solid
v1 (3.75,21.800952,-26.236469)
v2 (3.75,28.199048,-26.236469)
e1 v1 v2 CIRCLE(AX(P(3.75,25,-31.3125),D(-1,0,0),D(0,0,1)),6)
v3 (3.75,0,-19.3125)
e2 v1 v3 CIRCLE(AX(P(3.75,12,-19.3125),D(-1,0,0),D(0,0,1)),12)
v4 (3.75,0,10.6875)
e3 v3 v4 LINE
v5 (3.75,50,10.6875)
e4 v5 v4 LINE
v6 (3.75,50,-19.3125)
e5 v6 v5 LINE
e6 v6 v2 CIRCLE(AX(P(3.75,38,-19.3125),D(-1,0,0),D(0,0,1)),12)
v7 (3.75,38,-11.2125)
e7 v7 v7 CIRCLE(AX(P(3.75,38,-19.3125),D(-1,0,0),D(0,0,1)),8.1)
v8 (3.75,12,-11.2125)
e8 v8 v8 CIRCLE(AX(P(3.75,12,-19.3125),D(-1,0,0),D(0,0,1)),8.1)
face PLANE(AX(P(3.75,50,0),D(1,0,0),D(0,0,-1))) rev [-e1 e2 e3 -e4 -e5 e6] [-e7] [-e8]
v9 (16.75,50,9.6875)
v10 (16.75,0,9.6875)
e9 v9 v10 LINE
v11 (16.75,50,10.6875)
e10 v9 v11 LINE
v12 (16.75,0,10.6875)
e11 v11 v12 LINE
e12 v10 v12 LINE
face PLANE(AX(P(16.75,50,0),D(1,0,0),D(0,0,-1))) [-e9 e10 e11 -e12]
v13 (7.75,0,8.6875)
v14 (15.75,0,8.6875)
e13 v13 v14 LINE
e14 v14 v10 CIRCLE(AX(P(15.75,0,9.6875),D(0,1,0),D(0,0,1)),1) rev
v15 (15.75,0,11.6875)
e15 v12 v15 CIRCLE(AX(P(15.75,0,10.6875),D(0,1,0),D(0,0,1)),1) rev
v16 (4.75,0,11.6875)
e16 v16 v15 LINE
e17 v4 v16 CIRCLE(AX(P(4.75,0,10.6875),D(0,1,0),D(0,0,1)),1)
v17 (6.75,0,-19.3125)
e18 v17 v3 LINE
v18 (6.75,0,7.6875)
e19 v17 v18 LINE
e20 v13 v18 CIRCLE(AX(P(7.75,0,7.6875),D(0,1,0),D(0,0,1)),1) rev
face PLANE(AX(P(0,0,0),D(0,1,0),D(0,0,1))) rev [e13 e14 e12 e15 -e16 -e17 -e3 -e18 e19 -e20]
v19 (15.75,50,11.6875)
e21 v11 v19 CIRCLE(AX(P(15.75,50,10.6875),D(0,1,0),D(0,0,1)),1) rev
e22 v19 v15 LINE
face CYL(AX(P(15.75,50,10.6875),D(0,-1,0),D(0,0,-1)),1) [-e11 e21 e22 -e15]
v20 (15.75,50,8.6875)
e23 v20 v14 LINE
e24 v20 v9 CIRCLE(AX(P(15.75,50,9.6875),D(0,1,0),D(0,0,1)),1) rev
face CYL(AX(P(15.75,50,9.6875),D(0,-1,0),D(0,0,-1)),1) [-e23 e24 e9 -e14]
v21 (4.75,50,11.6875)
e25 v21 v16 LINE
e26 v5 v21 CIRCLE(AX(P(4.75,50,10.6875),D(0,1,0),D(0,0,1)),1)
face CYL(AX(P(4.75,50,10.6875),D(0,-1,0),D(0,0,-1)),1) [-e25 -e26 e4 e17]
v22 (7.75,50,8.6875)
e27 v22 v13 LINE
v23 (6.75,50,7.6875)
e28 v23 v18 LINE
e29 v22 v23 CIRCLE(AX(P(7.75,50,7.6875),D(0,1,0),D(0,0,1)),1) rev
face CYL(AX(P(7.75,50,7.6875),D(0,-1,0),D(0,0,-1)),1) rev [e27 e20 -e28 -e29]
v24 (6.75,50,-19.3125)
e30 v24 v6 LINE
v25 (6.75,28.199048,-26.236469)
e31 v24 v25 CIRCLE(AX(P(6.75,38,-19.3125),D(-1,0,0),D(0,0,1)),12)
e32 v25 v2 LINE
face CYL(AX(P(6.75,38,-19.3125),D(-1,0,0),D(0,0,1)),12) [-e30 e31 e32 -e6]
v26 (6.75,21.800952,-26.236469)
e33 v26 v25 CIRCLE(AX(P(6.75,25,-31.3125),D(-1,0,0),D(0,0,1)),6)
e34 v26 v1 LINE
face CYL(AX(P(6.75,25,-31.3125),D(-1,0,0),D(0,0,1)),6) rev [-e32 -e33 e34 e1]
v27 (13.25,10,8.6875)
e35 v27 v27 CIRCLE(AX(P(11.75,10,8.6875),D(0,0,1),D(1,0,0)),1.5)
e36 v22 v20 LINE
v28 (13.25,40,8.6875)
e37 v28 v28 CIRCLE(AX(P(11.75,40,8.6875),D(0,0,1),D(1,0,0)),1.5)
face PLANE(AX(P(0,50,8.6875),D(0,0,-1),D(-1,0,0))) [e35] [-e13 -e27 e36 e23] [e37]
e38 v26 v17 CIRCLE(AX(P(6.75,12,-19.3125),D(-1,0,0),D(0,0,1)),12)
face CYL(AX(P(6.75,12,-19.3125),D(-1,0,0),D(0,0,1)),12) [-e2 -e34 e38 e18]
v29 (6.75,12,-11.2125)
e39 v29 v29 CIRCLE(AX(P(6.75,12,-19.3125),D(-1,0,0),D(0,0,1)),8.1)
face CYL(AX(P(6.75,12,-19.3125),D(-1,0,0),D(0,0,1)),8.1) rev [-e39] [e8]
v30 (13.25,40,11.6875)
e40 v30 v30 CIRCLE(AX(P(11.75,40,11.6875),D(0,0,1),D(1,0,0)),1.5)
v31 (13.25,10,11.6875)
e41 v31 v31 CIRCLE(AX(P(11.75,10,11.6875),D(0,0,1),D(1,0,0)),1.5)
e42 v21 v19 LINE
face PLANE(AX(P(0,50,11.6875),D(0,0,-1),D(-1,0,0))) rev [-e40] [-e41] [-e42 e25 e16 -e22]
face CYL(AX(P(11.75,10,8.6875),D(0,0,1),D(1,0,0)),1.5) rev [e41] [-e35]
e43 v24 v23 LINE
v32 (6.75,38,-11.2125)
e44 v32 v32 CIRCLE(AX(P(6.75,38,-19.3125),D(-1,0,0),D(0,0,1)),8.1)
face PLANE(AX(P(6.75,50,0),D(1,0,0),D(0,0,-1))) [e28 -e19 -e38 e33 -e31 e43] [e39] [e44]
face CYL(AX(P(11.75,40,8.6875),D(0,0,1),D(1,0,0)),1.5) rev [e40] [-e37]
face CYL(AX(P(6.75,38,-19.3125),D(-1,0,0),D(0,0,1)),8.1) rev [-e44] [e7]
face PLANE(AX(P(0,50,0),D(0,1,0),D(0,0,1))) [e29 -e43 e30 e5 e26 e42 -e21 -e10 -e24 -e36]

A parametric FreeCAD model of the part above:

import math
import FreeCAD as App
import Part
import Sketcher

V = App.Vector

doc = App.newDocument("Part")
body = doc.addObject("PartDesign::Body", "Body")

sketch1 = body.newObject("Sketcher::SketchObject", "Sketch")
sketch1.AttachmentSupport = (doc.getObject("XZ_Plane"), [""])
sketch1.MapMode = "FlatFace"
sketch1.addGeometry(Part.LineSegment(V(6.8, -31.3, 0), V(3.8, -31.3, 0)), False)
sketch1.addGeometry(Part.LineSegment(V(3.8, -31.3, 0), V(3.8, 10.7, 0)), False)
sketch1.addGeometry(Part.ArcOfCircle(Part.Circle(V(4.8, 10.7, 0), V(0, 0, 1), 1), math.radians(90), math.radians(180)), False)
sketch1.addGeometry(Part.LineSegment(V(4.8, 11.7, 0), V(15.8, 11.7, 0)), False)
sketch1.addGeometry(Part.ArcOfCircle(Part.Circle(V(15.7, 10.7, 0), V(0, 0, 1), 1), math.radians(0), math.radians(90)), False)
sketch1.addGeometry(Part.LineSegment(V(16.8, 10.7, 0), V(16.8, 9.7, 0)), False)
sketch1.addGeometry(Part.ArcOfCircle(Part.Circle(V(15.7, 9.7, 0), V(0, 0, 1), 1), math.radians(-90), math.radians(0)), False)
sketch1.addGeometry(Part.LineSegment(V(15.8, 8.7, 0), V(7.8, 8.7, 0)), False)
sketch1.addGeometry(Part.ArcOfCircle(Part.Circle(V(7.8, 7.7, 0), V(0, 0, 1), 1), math.radians(90), math.radians(180)), False)
sketch1.addGeometry(Part.LineSegment(V(6.8, 7.7, 0), V(6.8, -31.3, 0)), False)
sketch1.addConstraint(Sketcher.Constraint("Coincident", 0, 2, 1, 1))
sketch1.addConstraint(Sketcher.Constraint("Tangent", 1, 2, 2, 2))
sketch1.addConstraint(Sketcher.Constraint("Tangent", 2, 1, 3, 1))
sketch1.addConstraint(Sketcher.Constraint("Tangent", 3, 2, 4, 2))
sketch1.addConstraint(Sketcher.Constraint("Tangent", 4, 1, 5, 1))
sketch1.addConstraint(Sketcher.Constraint("Tangent", 5, 2, 6, 2))
sketch1.addConstraint(Sketcher.Constraint("Tangent", 6, 1, 7, 1))
sketch1.addConstraint(Sketcher.Constraint("Tangent", 7, 2, 8, 1))
sketch1.addConstraint(Sketcher.Constraint("Tangent", 8, 2, 9, 1))
sketch1.addConstraint(Sketcher.Constraint("Coincident", 9, 2, 0, 1))
sketch1.addConstraint(Sketcher.Constraint("Horizontal", 0))
sketch1.addConstraint(Sketcher.Constraint("Vertical", 1))
sketch1.addConstraint(Sketcher.Constraint("Horizontal", 3))
sketch1.addConstraint(Sketcher.Constraint("Vertical", 5))
sketch1.addConstraint(Sketcher.Constraint("Horizontal", 7))
sketch1.addConstraint(Sketcher.Constraint("Vertical", 9))
sketch1.addConstraint(Sketcher.Constraint("Equal", 2, 4))
sketch1.addConstraint(Sketcher.Constraint("Equal", 4, 6))
sketch1.addConstraint(Sketcher.Constraint("Equal", 6, 8))
sketch1.addConstraint(Sketcher.Constraint("Radius", 2, 1.0))
sketch1.addConstraint(Sketcher.Constraint("DistanceX", 0, 2, 0, 1, 3.0))
sketch1.addConstraint(Sketcher.Constraint("DistanceX", 3, 1, 3, 2, 11.0))
sketch1.addConstraint(Sketcher.Constraint("DistanceY", 1, 1, 1, 2, 42.0))
sketch1.addConstraint(Sketcher.Constraint("DistanceY", 5, 2, 5, 1, 1.0))
sketch1.addConstraint(Sketcher.Constraint("DistanceX", -1, 1, 2, 3, 4.75))
sketch1.addConstraint(Sketcher.Constraint("DistanceY", -1, 1, 2, 3, 10.6875))
pad1 = body.newObject("PartDesign::Pad", "Pad")
pad1.Profile = sketch1
pad1.Length = 50
pad1.Reversed = True

sketch2 = body.newObject("Sketcher::SketchObject", "Sketch001")
sketch2.AttachmentSupport = (doc.getObject("XY_Plane"), [""])
sketch2.MapMode = "FlatFace"
sketch2.AttachmentOffset = App.Placement(V(0, 0, 11.6875), App.Rotation())
sketch2.addGeometry(Part.Circle(V(11.8, 40, 0), V(0, 0, 1), 1.5), False)
sketch2.addGeometry(Part.Circle(V(11.8, 10, 0), V(0, 0, 1), 1.5), False)
sketch2.addConstraint(Sketcher.Constraint("Equal", 0, 1))
sketch2.addConstraint(Sketcher.Constraint("Vertical", 0, 3, 1, 3))
sketch2.addConstraint(Sketcher.Constraint("Diameter", 0, 3.0))
sketch2.addConstraint(Sketcher.Constraint("DistanceY", -1, 1, 0, 3, 40.0))
sketch2.addConstraint(Sketcher.Constraint("DistanceY", -1, 1, 1, 3, 10.0))
sketch2.addConstraint(Sketcher.Constraint("DistanceX", -1, 1, 0, 3, 11.75))
pocket1 = body.newObject("PartDesign::Pocket", "Pocket")
pocket1.Profile = sketch2
pocket1.Length = 3

sketch3 = body.newObject("Sketcher::SketchObject", "Sketch002")
sketch3.AttachmentSupport = (doc.getObject("YZ_Plane"), [""])
sketch3.MapMode = "FlatFace"
sketch3.AttachmentOffset = App.Placement(V(0, 0, 3.75), App.Rotation())
sketch3.addGeometry(Part.LineSegment(V(0, -31, 0), V(0, -19, 0)), False)
sketch3.addGeometry(Part.ArcOfCircle(Part.Circle(V(12, -19, 0), V(0, 0, 1), 12), math.radians(-180), math.radians(-90)), False)
sketch3.addGeometry(Part.LineSegment(V(12, -31, 0), V(0, -31, 0)), False)
sketch3.addGeometry(Part.LineSegment(V(38, -31, 0), V(12, -31, 0)), False)
sketch3.addGeometry(Part.ArcOfCircle(Part.Circle(V(12, -19, 0), V(0, 0, 1), 12), math.radians(-90), math.radians(-35)), False)
sketch3.addGeometry(Part.ArcOfCircle(Part.Circle(V(25, -31, 0), V(0, 0, 1), 6), math.radians(58), math.radians(122)), False)
sketch3.addGeometry(Part.ArcOfCircle(Part.Circle(V(38, -19, 0), V(0, 0, 1), 12), math.radians(-145), math.radians(-90)), False)
sketch3.addGeometry(Part.LineSegment(V(50, -31, 0), V(38, -31, 0)), False)
sketch3.addGeometry(Part.ArcOfCircle(Part.Circle(V(38, -19, 0), V(0, 0, 1), 12), math.radians(-90), math.radians(0)), False)
sketch3.addGeometry(Part.LineSegment(V(50, -19, 0), V(50, -31, 0)), False)
sketch3.addGeometry(Part.Circle(V(12, -19, 0), V(0, 0, 1), 8), False)
sketch3.addGeometry(Part.Circle(V(38, -19, 0), V(0, 0, 1), 8), False)
sketch3.addConstraint(Sketcher.Constraint("Tangent", 0, 2, 1, 1))
sketch3.addConstraint(Sketcher.Constraint("Tangent", 1, 2, 2, 1))
sketch3.addConstraint(Sketcher.Constraint("Coincident", 2, 2, 0, 1))
sketch3.addConstraint(Sketcher.Constraint("Tangent", 3, 2, 4, 1))
sketch3.addConstraint(Sketcher.Constraint("Coincident", 4, 2, 5, 2))
sketch3.addConstraint(Sketcher.Constraint("Coincident", 5, 1, 6, 1))
sketch3.addConstraint(Sketcher.Constraint("Tangent", 6, 2, 3, 1))
sketch3.addConstraint(Sketcher.Constraint("Tangent", 7, 2, 8, 1))
sketch3.addConstraint(Sketcher.Constraint("Tangent", 8, 2, 9, 1))
sketch3.addConstraint(Sketcher.Constraint("Coincident", 9, 2, 7, 1))
sketch3.addConstraint(Sketcher.Constraint("Vertical", 0))
sketch3.addConstraint(Sketcher.Constraint("Horizontal", 2))
sketch3.addConstraint(Sketcher.Constraint("Horizontal", 3))
sketch3.addConstraint(Sketcher.Constraint("Horizontal", 7))
sketch3.addConstraint(Sketcher.Constraint("Vertical", 9))
sketch3.addConstraint(Sketcher.Constraint("Coincident", 4, 3, 1, 3))
sketch3.addConstraint(Sketcher.Constraint("Coincident", 8, 3, 6, 3))
sketch3.addConstraint(Sketcher.Constraint("Coincident", 10, 3, 1, 3))
sketch3.addConstraint(Sketcher.Constraint("Coincident", 11, 3, 6, 3))
sketch3.addConstraint(Sketcher.Constraint("Equal", 1, 4))
sketch3.addConstraint(Sketcher.Constraint("Equal", 4, 6))
sketch3.addConstraint(Sketcher.Constraint("Equal", 6, 8))
sketch3.addConstraint(Sketcher.Constraint("Equal", 10, 11))
sketch3.addConstraint(Sketcher.Constraint("PointOnObject", 0, 2, -2))
sketch3.addConstraint(Sketcher.Constraint("Horizontal", 5, 3, 1, 2))
sketch3.addConstraint(Sketcher.Constraint("Horizontal", 4, 2, 5, 1))
sketch3.addConstraint(Sketcher.Constraint("Radius", 1, 12.0))
sketch3.addConstraint(Sketcher.Constraint("Radius", 5, 6.0))
sketch3.addConstraint(Sketcher.Constraint("Diameter", 10, 16.2))
sketch3.addConstraint(Sketcher.Constraint("DistanceX", 3, 2, 3, 1, 26.0))
sketch3.addConstraint(Sketcher.Constraint("DistanceY", 1, 3, -1, 1, 19.3125))
pocket2 = body.newObject("PartDesign::Pocket", "Pocket001")
pocket2.Profile = sketch3
pocket2.Length = 3
pocket2.Reversed = True

doc.recompute()
